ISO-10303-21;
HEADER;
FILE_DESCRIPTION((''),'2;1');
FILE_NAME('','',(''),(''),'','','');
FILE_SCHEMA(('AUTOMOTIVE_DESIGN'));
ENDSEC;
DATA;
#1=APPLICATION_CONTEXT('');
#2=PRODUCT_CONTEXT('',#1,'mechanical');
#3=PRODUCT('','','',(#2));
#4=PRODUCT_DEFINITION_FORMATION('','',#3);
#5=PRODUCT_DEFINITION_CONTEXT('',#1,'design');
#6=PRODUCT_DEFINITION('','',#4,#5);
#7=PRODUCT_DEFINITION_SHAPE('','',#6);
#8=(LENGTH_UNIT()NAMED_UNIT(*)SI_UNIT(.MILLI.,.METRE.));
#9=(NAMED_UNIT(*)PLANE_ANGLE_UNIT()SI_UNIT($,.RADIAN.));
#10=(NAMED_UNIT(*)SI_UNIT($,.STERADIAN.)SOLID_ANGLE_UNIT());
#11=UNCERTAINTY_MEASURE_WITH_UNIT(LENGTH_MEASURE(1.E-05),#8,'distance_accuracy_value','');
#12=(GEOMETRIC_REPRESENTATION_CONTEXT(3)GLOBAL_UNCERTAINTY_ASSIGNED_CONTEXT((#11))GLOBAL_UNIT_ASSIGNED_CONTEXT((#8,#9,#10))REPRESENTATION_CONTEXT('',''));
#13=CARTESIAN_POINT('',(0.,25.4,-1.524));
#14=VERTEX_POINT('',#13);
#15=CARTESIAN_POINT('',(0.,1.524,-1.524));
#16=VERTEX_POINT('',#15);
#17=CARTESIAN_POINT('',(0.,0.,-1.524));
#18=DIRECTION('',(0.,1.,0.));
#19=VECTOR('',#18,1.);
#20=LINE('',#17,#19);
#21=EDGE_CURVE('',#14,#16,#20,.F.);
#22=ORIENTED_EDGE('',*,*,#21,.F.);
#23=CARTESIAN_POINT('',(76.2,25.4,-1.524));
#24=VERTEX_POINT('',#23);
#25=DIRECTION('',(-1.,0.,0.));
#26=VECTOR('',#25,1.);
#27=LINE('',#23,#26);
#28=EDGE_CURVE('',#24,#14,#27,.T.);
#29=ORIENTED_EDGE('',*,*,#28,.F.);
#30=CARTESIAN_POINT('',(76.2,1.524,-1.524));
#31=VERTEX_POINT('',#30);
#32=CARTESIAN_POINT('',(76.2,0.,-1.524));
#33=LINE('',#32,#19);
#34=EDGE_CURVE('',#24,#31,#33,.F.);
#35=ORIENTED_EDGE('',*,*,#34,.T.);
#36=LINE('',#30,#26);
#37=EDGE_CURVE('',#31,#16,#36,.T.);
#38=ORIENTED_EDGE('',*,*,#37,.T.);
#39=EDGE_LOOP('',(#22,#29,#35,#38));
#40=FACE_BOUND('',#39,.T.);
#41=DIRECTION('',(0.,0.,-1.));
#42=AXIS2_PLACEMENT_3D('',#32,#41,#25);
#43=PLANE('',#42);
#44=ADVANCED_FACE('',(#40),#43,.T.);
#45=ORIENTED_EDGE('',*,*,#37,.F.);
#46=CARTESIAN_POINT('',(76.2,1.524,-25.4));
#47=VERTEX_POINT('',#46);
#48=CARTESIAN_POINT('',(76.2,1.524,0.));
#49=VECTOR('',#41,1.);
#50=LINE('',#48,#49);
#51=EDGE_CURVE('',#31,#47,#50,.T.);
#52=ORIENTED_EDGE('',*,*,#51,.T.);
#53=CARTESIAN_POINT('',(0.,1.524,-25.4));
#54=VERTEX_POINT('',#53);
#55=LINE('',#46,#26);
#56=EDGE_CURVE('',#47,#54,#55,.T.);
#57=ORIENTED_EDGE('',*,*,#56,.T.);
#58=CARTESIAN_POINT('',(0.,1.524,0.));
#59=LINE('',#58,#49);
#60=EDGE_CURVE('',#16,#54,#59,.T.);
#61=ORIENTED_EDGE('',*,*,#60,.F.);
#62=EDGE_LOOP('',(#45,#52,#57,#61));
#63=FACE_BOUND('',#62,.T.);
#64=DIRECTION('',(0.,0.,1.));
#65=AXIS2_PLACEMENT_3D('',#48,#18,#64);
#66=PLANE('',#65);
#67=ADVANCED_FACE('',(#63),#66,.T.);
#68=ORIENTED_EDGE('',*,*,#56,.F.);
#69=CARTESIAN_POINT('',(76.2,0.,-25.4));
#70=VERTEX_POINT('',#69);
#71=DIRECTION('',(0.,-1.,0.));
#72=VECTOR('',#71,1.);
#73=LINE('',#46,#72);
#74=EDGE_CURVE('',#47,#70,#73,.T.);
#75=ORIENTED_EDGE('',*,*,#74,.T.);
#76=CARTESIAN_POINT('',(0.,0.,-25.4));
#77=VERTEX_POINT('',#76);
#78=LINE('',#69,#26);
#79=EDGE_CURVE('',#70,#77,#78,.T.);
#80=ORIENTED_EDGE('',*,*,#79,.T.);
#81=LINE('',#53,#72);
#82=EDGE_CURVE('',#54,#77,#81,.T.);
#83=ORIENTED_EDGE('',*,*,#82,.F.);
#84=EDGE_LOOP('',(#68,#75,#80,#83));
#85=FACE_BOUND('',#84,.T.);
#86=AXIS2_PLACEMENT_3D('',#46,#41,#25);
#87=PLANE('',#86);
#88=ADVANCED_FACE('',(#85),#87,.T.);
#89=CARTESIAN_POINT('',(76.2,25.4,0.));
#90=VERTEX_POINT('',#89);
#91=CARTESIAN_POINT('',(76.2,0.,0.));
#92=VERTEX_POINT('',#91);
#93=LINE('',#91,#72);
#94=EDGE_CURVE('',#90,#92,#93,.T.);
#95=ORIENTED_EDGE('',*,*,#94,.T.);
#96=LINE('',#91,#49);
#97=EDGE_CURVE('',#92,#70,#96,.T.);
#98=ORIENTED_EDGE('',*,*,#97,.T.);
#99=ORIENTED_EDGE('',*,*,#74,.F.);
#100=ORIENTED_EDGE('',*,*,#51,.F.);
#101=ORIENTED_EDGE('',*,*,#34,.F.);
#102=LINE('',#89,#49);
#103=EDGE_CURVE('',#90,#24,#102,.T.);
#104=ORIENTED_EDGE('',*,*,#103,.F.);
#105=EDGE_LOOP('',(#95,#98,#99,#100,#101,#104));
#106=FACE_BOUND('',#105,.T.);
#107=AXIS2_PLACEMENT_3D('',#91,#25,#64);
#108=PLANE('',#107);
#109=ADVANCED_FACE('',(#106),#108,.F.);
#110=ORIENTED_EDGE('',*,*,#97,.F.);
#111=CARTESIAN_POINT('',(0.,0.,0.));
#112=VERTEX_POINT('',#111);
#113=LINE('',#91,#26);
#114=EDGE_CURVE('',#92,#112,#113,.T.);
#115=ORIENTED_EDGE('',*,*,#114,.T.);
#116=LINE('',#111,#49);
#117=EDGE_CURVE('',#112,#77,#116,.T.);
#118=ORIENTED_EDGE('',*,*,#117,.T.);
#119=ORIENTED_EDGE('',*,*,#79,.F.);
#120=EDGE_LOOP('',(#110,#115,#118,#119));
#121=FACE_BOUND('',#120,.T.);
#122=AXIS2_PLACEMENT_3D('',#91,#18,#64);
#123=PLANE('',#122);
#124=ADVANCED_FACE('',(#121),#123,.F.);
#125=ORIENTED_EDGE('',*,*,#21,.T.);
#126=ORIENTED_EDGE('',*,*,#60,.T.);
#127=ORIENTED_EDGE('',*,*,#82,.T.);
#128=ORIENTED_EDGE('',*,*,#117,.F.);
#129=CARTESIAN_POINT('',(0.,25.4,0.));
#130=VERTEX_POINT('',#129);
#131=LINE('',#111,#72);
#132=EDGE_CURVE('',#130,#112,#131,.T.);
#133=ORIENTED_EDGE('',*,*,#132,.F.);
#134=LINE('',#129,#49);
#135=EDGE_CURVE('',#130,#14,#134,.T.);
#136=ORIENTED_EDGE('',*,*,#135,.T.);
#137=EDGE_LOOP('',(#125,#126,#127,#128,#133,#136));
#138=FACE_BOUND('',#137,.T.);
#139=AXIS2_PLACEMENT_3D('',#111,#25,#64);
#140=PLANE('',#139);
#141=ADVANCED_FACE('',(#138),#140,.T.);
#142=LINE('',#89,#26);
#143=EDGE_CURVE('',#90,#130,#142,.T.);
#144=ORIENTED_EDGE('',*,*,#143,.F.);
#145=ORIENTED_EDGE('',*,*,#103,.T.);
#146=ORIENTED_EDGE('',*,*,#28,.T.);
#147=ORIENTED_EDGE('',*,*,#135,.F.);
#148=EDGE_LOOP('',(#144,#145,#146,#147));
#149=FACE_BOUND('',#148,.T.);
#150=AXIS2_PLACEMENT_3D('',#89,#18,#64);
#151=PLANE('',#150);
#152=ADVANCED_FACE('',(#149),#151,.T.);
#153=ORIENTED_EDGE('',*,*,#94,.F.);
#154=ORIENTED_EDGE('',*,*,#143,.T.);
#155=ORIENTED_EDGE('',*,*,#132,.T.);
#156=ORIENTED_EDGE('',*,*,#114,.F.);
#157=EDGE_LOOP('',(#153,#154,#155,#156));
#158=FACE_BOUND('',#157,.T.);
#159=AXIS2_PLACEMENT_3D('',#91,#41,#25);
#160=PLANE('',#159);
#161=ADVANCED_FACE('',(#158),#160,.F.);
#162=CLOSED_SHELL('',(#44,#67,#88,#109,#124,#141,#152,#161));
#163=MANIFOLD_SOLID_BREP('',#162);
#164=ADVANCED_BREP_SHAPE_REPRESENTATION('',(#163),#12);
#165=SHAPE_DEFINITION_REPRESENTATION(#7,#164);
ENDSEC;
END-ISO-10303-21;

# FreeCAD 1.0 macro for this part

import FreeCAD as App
import Part
import Sketcher

V = App.Vector
Q = App.Units.Quantity

doc = App.newDocument("Part")
body = doc.addObject("PartDesign::Body", "Body")

sketch1 = body.newObject("Sketcher::SketchObject", "Sketch")
sketch1.AttachmentSupport = (doc.getObject("YZ_Plane"), [""])
sketch1.MapMode = "FlatFace"
sketch1.addGeometry([
    Part.LineSegment(V(25.4, 0, 0), V(0, 0, 0)),
    Part.LineSegment(V(0, 0, 0), V(0, -25.4, 0)),
    Part.LineSegment(V(0, -25.4, 0), V(1.524, -25.4, 0)),
    Part.LineSegment(V(1.524, -25.4, 0), V(1.524, -1.524, 0)),
    Part.LineSegment(V(1.524, -1.524, 0), V(25.4, -1.524, 0)),
    Part.LineSegment(V(25.4, -1.524, 0), V(25.4, 0, 0)),
], False)
sketch1.addConstraint([
    Sketcher.Constraint("Coincident", 0, 2, 1, 1),
    Sketcher.Constraint("Coincident", 1, 2, 2, 1),
    Sketcher.Constraint("Coincident", 2, 2, 3, 1),
    Sketcher.Constraint("Coincident", 3, 2, 4, 1),
    Sketcher.Constraint("Coincident", 4, 2, 5, 1),
    Sketcher.Constraint("Coincident", 5, 2, 0, 1),
    Sketcher.Constraint("Horizontal", 0),
    Sketcher.Constraint("Vertical", 1),
    Sketcher.Constraint("Horizontal", 2),
    Sketcher.Constraint("Vertical", 3),
    Sketcher.Constraint("Horizontal", 4),
    Sketcher.Constraint("Vertical", 5),
    Sketcher.Constraint("Coincident", 0, 2, -1, 1),
    Sketcher.Constraint("Equal", 0, 1),
    Sketcher.Constraint("Equal", 4, 3),
    Sketcher.Constraint("DistanceX", 0, 2, 0, 1, Q("1 in")),
    Sketcher.Constraint("DistanceX", 2, 1, 2, 2, Q("0.06 in")),
])
pad1 = body.newObject("PartDesign::Pad", "Pad")
pad1.Profile = sketch1
pad1.Length = Q("3 in")

doc.recompute()
